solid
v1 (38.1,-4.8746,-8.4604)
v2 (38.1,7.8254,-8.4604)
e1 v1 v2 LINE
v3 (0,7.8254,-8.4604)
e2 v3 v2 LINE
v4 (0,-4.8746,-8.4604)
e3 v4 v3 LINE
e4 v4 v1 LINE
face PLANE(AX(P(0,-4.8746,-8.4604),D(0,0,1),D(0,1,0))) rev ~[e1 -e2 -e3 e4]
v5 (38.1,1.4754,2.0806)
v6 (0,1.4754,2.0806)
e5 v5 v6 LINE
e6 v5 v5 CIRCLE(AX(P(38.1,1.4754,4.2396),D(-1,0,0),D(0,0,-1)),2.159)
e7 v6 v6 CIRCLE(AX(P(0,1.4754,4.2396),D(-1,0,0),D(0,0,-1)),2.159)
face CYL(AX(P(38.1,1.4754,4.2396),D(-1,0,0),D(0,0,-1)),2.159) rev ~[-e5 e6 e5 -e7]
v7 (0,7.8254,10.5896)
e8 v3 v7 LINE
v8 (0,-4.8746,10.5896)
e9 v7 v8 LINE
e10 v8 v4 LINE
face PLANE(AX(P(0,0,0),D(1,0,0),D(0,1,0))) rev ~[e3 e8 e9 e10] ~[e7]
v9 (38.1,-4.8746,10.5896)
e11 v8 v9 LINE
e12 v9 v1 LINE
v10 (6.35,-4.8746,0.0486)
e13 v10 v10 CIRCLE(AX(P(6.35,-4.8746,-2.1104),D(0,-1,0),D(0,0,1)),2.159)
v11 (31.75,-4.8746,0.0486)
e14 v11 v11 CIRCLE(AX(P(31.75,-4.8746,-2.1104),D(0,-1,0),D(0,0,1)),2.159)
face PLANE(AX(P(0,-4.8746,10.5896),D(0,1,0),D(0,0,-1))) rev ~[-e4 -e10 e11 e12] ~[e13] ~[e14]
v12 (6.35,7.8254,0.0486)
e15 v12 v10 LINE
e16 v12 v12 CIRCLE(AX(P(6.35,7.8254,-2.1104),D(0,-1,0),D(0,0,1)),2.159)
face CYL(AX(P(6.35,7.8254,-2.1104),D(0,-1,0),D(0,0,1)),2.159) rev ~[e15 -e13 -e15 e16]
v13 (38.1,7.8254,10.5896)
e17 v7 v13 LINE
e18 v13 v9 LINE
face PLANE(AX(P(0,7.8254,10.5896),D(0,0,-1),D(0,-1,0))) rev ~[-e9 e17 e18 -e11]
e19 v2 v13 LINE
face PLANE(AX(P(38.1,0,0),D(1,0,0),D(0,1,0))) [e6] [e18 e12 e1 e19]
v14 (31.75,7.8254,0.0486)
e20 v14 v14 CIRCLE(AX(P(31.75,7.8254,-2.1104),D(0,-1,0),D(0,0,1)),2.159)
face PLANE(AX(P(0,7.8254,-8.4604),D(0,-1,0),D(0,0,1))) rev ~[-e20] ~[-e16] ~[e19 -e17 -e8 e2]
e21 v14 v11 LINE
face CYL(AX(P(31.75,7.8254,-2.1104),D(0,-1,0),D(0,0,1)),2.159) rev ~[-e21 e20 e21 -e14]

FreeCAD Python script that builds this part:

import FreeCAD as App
import Part
import Sketcher
from FreeCAD import Vector
Q = App.Units.Quantity


def add_polygon(sketch, points):
    """Adds a closed chain of lines whose ends are joined by coincident constraints."""
    first, n = sketch.GeometryCount, len(points)
    for a, b in zip(points, points[1:] + points[:1]):
        sketch.addGeometry(Part.LineSegment(App.Vector(*a, 0), App.Vector(*b, 0)), False)
    for i in range(n):
        sketch.addConstraint(Sketcher.Constraint("Coincident", first + i, 2, first + (i + 1) % n, 1))

doc = App.newDocument("Part")
body = doc.addObject("PartDesign::Body", "Body")

sketch1 = doc.addObject("Sketcher::SketchObject", "Sketch")
body.addObject(sketch1)
sketch1.AttachmentSupport = (doc.YZ_Plane, [""])
sketch1.MapMode = "FlatFace"
add_polygon(sketch1, [(8, -8), (8, 11), (-5, 11), (-5, -8)])
sketch1.addConstraint([
    Sketcher.Constraint("Vertical", 0),
    Sketcher.Constraint("Horizontal", 1),
    Sketcher.Constraint("Vertical", 2),
    Sketcher.Constraint("Horizontal", 3),
    Sketcher.Constraint("DistanceX", 1, 2, 1, 1, Q("0.5 in")),
    Sketcher.Constraint("DistanceY", 0, 1, 0, 2, Q("0.75 in")),
    Sketcher.Constraint("DistanceX", -1, 1, 0, 2, 7.8254),
    Sketcher.Constraint("DistanceY", -1, 1, 0, 2, 10.5896),
])
pad1 = doc.addObject("PartDesign::Pad", "Pad")
body.addObject(pad1)
pad1.Profile = sketch1
pad1.Length = Q("1.5 in")

sketch2 = doc.addObject("Sketcher::SketchObject", "Sketch001")
body.addObject(sketch2)
sketch2.AttachmentSupport = (doc.YZ_Plane, [""])
sketch2.MapMode = "FlatFace"
sketch2.AttachmentOffset = App.Placement(Vector(0, 0, 1.5 * 25.4), App.Rotation())
sketch2.addGeometry(Part.Circle(Vector(1.5, 4.2, 0), Vector(0, 0, 1), 2.2), False)
sketch2.addConstraint([
    Sketcher.Constraint("Diameter", 0, Q("0.17 in")),
    Sketcher.Constraint("DistanceX", -1, 1, 0, 3, 1.4754),
    Sketcher.Constraint("DistanceY", -1, 1, 0, 3, 4.2396),
])
doc.recompute()
hole = doc.addObject("PartDesign::Hole", "Hole")
body.addObject(hole)
hole.Profile = sketch2
hole.ThreadType = "None"
hole.Diameter = Q("0.17 in")
hole.DepthType = "ThroughAll"

sketch3 = doc.addObject("Sketcher::SketchObject", "Sketch002")
body.addObject(sketch3)
sketch3.AttachmentSupport = (doc.XZ_Plane, [""])
sketch3.MapMode = "FlatFace"
sketch3.AttachmentOffset = App.Placement(Vector(0, 0, -7.8254), App.Rotation())
sketch3.addGeometry([
    Part.Circle(Vector(6.3, -2.1, 0), Vector(0, 0, 1), 2.2),
    Part.Circle(Vector(31.8, -2.1, 0), Vector(0, 0, 1), 2.2),
], False)
sketch3.addConstraint([
    Sketcher.Constraint("Equal", 0, 1),
    Sketcher.Constraint("Horizontal", 0, 3, 1, 3),
    Sketcher.Constraint("Diameter", 0, Q("0.17 in")),
    Sketcher.Constraint("DistanceX", 0, 3, 1, 3, Q("1 in")),
    Sketcher.Constraint("DistanceX", -1, 1, 0, 3, Q("0.25 in")),
    Sketcher.Constraint("DistanceY", 0, 3, -1, 1, 2.1104),
])
doc.recompute()
hole2 = doc.addObject("PartDesign::Hole", "Hole001")
body.addObject(hole2)
hole2.Profile = sketch3
hole2.ThreadType = "None"
hole2.Diameter = Q("0.17 in")
hole2.DepthType = "ThroughAll"
hole2.Reversed = True

doc.recompute()
